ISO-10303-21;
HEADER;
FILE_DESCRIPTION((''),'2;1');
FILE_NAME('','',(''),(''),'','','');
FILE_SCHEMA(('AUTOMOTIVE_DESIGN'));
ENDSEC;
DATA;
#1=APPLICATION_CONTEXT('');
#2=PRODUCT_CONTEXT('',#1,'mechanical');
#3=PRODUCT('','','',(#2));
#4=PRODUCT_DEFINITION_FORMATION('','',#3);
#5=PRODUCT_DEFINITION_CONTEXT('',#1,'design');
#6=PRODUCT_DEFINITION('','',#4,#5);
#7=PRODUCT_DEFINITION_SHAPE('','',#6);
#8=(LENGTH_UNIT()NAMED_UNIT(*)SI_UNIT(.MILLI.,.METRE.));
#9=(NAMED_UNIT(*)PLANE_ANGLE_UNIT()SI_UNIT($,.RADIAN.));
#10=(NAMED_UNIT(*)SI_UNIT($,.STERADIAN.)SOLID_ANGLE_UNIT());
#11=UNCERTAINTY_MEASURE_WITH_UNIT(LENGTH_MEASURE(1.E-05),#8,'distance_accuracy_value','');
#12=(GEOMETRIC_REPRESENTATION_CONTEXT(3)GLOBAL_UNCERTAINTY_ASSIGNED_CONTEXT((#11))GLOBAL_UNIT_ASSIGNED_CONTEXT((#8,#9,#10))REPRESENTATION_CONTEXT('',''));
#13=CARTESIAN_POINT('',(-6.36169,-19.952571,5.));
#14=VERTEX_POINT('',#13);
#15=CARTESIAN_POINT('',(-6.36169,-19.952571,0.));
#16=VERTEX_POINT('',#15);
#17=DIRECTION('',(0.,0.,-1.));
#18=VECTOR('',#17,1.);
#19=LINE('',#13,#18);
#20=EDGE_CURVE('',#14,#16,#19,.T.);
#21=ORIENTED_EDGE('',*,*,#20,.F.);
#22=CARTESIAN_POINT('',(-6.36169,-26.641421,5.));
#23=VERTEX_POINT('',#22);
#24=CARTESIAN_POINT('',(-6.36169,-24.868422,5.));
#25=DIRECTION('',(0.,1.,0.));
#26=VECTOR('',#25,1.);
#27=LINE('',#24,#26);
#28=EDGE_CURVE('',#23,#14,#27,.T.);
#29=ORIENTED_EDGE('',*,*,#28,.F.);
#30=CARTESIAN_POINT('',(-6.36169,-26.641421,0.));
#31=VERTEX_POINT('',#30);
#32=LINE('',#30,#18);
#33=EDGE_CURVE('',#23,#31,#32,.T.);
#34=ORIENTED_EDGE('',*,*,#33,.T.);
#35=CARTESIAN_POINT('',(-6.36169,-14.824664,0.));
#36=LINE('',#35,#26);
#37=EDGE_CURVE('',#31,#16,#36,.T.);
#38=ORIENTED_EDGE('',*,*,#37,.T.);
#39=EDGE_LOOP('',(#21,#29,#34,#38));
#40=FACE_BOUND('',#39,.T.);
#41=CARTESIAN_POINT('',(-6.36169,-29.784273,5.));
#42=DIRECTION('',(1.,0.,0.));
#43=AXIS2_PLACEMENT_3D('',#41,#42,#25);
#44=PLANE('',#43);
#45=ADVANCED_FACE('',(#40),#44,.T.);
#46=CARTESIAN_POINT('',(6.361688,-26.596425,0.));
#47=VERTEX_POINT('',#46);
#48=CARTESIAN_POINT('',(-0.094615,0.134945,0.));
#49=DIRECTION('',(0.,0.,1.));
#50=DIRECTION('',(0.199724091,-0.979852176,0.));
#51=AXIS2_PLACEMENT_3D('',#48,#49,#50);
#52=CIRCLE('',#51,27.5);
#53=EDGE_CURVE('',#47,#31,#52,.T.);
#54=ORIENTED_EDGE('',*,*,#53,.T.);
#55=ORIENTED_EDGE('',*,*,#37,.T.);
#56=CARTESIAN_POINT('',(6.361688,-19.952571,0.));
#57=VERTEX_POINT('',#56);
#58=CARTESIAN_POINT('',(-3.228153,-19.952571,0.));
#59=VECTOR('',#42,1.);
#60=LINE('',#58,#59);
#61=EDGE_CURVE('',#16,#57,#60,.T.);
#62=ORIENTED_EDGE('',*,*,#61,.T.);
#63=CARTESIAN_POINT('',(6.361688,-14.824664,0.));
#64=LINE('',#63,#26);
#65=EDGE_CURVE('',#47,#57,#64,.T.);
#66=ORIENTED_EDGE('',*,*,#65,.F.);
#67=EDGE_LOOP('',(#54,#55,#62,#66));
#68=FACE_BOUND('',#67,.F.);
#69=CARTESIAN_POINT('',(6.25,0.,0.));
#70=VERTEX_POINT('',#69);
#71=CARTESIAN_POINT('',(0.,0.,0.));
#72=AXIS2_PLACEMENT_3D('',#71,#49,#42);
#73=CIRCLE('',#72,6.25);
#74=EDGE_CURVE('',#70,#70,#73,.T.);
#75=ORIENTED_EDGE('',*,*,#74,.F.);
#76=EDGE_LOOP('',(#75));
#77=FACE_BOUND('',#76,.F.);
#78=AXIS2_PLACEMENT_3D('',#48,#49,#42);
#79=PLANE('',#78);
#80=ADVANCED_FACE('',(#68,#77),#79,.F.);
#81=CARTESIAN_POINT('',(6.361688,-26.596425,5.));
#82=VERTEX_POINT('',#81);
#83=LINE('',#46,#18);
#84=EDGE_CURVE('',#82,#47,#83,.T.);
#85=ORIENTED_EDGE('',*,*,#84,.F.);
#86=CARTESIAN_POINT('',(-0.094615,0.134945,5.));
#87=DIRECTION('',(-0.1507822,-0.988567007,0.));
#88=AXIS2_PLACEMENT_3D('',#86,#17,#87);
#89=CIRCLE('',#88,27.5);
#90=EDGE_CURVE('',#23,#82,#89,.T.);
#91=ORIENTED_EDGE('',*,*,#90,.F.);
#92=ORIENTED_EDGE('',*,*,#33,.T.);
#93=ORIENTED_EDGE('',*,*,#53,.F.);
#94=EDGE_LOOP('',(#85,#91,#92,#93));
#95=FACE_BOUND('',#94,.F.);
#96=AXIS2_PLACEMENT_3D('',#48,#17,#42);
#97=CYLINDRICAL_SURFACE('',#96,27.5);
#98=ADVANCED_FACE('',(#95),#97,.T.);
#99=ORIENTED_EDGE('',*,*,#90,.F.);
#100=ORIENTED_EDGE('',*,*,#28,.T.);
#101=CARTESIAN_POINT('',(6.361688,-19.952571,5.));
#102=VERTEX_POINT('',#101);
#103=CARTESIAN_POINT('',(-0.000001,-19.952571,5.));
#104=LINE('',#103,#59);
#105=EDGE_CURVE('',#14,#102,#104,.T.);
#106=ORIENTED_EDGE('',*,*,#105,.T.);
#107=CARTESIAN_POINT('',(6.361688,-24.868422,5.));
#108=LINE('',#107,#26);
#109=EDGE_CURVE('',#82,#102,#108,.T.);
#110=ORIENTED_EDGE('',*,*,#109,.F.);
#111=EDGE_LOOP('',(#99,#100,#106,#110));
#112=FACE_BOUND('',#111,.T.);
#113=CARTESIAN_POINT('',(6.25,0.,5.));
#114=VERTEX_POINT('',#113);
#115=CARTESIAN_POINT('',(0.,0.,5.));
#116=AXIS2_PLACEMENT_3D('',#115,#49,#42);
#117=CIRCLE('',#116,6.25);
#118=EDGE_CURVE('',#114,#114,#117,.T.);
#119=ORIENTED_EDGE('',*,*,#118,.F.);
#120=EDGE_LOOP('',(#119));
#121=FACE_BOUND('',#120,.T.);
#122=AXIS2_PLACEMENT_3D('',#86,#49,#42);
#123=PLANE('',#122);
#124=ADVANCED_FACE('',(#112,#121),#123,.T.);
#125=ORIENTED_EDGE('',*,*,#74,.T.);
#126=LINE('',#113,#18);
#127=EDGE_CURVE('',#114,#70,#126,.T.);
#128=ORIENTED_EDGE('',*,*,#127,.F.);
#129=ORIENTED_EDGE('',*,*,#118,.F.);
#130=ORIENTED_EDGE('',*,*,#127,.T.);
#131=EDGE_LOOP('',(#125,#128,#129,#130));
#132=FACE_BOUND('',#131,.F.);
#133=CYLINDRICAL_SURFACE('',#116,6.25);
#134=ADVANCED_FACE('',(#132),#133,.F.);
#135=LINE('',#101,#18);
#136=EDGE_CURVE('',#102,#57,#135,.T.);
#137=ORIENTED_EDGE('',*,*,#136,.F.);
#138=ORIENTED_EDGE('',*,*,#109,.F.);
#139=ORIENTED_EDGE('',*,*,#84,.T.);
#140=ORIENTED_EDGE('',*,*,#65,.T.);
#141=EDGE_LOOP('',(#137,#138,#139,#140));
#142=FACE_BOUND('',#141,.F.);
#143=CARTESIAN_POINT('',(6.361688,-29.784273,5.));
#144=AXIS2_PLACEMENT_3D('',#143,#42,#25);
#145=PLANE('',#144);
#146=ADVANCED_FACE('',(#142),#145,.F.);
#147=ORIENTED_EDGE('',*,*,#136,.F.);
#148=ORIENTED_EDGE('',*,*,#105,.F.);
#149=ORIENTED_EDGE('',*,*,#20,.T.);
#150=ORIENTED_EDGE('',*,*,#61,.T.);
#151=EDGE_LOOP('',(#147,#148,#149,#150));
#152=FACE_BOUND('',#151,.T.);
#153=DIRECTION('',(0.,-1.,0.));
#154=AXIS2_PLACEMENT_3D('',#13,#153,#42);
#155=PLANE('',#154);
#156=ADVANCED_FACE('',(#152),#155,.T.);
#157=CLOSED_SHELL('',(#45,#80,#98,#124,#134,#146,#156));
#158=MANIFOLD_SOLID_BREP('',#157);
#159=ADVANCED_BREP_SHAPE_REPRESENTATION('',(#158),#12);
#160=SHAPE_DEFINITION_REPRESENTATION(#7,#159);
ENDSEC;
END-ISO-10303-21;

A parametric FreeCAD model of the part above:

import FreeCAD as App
import Part
import Sketcher
from FreeCAD import Vector


def add_polygon(sketch, points):
    """Adds a closed chain of lines whose ends are joined by coincident constraints."""
    first, n = sketch.GeometryCount, len(points)
    for a, b in zip(points, points[1:] + points[:1]):
        sketch.addGeometry(Part.LineSegment(App.Vector(*a, 0), App.Vector(*b, 0)), False)
    for i in range(n):
        sketch.addConstraint(Sketcher.Constraint("Coincident", first + i, 2, first + (i + 1) % n, 1))

doc = App.newDocument("Part")
body = doc.addObject("PartDesign::Body", "Body")

# Sketch on XY plane
sketch1 = body.newObject("Sketcher::SketchObject", "Sketch")
sketch1.AttachmentSupport = (doc.getObject("XY_Plane"), [""])
sketch1.MapMode = "FlatFace"
sketch1.addGeometry(Part.Circle(Vector(0, 0, 0), Vector(0, 0, 1), 28), False)
sketch1.addConstraint(Sketcher.Constraint("Diameter", 0, 55.0))
sketch1.addConstraint(Sketcher.Constraint("DistanceX", 0, 3, -1, 1, 0.094615))
sketch1.addConstraint(Sketcher.Constraint("DistanceY", -1, 1, 0, 3, 0.134945))
pad1 = body.newObject("PartDesign::Pad", "Pad")
pad1.Profile = sketch1
pad1.Length = 5

# Sketch on XY plane
sketch2 = body.newObject("Sketcher::SketchObject", "Sketch001")
sketch2.AttachmentSupport = (doc.getObject("XY_Plane"), [""])
sketch2.MapMode = "FlatFace"
sketch2.AttachmentOffset = App.Placement(Vector(0, 0, 5), App.Rotation())
sketch2.addGeometry(Part.Circle(Vector(0, 0, 0), Vector(0, 0, 1), 6), False)
sketch2.addConstraint(Sketcher.Constraint("Coincident", 0, 3, -1, 1))
sketch2.addConstraint(Sketcher.Constraint("Diameter", 0, 12.5))
pocket1 = body.newObject("PartDesign::Pocket", "Pocket")
pocket1.Profile = sketch2
pocket1.Length = 25

# Sketch on XY plane
sketch3 = body.newObject("Sketcher::SketchObject", "Sketch002")
sketch3.AttachmentSupport = (doc.getObject("XY_Plane"), [""])
sketch3.MapMode = "FlatFace"
sketch3.AttachmentOffset = App.Placement(Vector(0, 0, 5), App.Rotation())
add_polygon(sketch3, [(-4, -21), (-4, -29), (5, -29), (5, -21)])  # lines 0-3
sketch3.addConstraint(Sketcher.Constraint("Vertical", 0))
sketch3.addConstraint(Sketcher.Constraint("Horizontal", 1))
sketch3.addConstraint(Sketcher.Constraint("Vertical", 2))
sketch3.addConstraint(Sketcher.Constraint("Horizontal", 3))
sketch3.addConstraint(Sketcher.Constraint("DistanceY", 0, 2, 0, 1, 7.71114))
sketch3.addConstraint(Sketcher.Constraint("DistanceY", 0, 2, -1, 1, 28.627602))
sketch3.addConstraint(Sketcher.Constraint("DistanceX", 1, 1, 1, 2, 9.638923))
sketch3.addConstraint(Sketcher.Constraint("DistanceX", 0, 2, -1, 1, 4.241125))
pocket2 = body.newObject("PartDesign::Pocket", "Pocket001")
pocket2.Profile = sketch3
pocket2.Length = 5

# Sketch on XY plane
sketch4 = body.newObject("Sketcher::SketchObject", "Sketch003")
sketch4.AttachmentSupport = (doc.getObject("XY_Plane"), [""])
sketch4.MapMode = "FlatFace"
sketch4.AttachmentOffset = App.Placement(Vector(0, 0, 5), App.Rotation())
add_polygon(sketch4, [(-6, -20), (-6, -30), (6, -30), (6, -20)])  # lines 0-3
sketch4.addConstraint(Sketcher.Constraint("Vertical", 0))
sketch4.addConstraint(Sketcher.Constraint("Horizontal", 1))
sketch4.addConstraint(Sketcher.Constraint("Vertical", 2))
sketch4.addConstraint(Sketcher.Constraint("Horizontal", 3))
sketch4.addConstraint(Sketcher.Constraint("DistanceX", 1, 1, 1, 2, 12.723378))
sketch4.addConstraint(Sketcher.Constraint("DistanceY", 0, 2, 0, 1, 9.831702))
sketch4.addConstraint(Sketcher.Constraint("DistanceX", 0, 2, -1, 1, 6.36169))
sketch4.addConstraint(Sketcher.Constraint("DistanceY", 2, 2, -1, 1, 19.952571))
pocket3 = body.newObject("PartDesign::Pocket", "Pocket002")
pocket3.Profile = sketch4
pocket3.Length = 25

doc.recompute()
